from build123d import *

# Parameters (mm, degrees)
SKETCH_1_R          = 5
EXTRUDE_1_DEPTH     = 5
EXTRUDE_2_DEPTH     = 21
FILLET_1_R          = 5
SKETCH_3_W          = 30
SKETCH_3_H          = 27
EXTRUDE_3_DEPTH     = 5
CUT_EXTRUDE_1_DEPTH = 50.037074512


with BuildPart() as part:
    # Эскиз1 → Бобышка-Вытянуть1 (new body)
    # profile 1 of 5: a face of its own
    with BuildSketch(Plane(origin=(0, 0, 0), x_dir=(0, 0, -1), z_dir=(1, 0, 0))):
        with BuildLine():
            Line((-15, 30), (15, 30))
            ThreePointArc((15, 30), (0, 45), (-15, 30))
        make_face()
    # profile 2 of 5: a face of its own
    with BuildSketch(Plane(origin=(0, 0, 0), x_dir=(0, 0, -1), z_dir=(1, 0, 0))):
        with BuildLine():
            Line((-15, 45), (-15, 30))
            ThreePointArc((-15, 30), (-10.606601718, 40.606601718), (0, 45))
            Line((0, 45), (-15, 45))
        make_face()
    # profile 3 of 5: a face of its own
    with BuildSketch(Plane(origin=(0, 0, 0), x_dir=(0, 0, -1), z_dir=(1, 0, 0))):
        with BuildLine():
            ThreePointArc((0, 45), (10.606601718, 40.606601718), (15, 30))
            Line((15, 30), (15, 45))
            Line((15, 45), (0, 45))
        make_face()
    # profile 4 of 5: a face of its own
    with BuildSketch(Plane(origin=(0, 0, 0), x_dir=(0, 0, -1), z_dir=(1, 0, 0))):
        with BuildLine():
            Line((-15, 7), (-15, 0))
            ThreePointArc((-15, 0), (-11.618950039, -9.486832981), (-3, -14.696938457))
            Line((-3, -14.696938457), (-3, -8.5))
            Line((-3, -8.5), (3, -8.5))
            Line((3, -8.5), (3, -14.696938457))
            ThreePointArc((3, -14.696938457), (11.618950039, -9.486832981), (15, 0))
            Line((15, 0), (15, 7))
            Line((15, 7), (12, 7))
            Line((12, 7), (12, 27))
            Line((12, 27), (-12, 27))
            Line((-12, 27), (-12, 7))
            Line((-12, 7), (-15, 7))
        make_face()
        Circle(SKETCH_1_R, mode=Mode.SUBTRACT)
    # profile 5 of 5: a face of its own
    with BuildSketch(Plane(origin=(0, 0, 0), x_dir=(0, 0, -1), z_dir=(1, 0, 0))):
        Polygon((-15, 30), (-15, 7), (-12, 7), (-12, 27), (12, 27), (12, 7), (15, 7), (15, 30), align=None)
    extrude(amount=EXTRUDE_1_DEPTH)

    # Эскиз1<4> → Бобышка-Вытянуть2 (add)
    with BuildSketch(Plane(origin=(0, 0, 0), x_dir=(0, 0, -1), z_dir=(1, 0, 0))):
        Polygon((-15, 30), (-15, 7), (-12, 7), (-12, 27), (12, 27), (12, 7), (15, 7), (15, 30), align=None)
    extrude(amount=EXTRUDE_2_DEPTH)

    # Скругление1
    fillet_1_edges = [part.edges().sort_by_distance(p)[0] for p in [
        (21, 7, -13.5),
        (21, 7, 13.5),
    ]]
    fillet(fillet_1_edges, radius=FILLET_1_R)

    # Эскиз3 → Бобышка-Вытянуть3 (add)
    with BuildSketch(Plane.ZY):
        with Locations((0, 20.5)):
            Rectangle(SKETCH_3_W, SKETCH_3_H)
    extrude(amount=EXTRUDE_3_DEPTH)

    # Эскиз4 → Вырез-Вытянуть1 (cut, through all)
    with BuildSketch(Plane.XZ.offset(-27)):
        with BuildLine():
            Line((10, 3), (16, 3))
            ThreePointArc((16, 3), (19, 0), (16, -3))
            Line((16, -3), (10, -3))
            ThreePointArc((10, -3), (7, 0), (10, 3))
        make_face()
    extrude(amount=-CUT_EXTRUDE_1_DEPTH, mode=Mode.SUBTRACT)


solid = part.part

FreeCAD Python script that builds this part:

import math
import FreeCAD as App
import Part
import Sketcher
Q = App.Units.Quantity


def edges_at(feature, points):
    """Names of the edges that pass closest to the given points."""
    edges = feature.Shape.Edges
    near = lambda p: min(range(len(edges)), key=lambda i: edges[i].distToShape(Part.Vertex(*p))[0])
    return sorted({f"Edge{near(p) + 1}" for p in points})


def add_polygon(sketch, points):
    """Adds a closed chain of lines whose ends are joined by coincident constraints."""
    first, n = sketch.GeometryCount, len(points)
    for a, b in zip(points, points[1:] + points[:1]):
        sketch.addGeometry(Part.LineSegment(App.Vector(*a, 0), App.Vector(*b, 0)), False)
    for i in range(n):
        sketch.addConstraint(Sketcher.Constraint("Coincident", first + i, 2, first + (i + 1) % n, 1))

doc = App.newDocument("Part")
body = doc.addObject("PartDesign::Body", "Body")

sketch1 = body.newObject("Sketcher::SketchObject", "Sketch")
sketch1.AttachmentSupport = (doc.getObject("YZ_Plane"), [""])
sketch1.MapMode = "FlatFace"
sketch1.addGeometry(Part.ArcOfCircle(Part.Circle(App.Vector(0, 0, 0), App.Vector(0, 0, 1), 15), math.radians(90), math.radians(168)), False)
sketch1.addGeometry(Part.LineSegment(App.Vector(-15, 3, 0), App.Vector(-8, 3, 0)), False)
sketch1.addGeometry(Part.LineSegment(App.Vector(-8, 3, 0), App.Vector(-8, -3, 0)), False)
sketch1.addGeometry(Part.LineSegment(App.Vector(-8, -3, 0), App.Vector(-15, -3, 0)), False)
sketch1.addGeometry(Part.ArcOfCircle(Part.Circle(App.Vector(0, 0, 0), App.Vector(0, 0, 1), 15), math.radians(-168), math.radians(-90)), False)
sketch1.addGeometry(Part.LineSegment(App.Vector(0, -15, 0), App.Vector(45, -15, 0)), False)
sketch1.addGeometry(Part.LineSegment(App.Vector(45, -15, 0), App.Vector(45, 15, 0)), False)
sketch1.addGeometry(Part.LineSegment(App.Vector(45, 15, 0), App.Vector(0, 15, 0)), False)
sketch1.addGeometry(Part.Circle(App.Vector(0, 0, 0), App.Vector(0, 0, 1), 5), False)
sketch1.addConstraint(Sketcher.Constraint("Coincident", 0, 2, 1, 1))
sketch1.addConstraint(Sketcher.Constraint("Coincident", 1, 2, 2, 1))
sketch1.addConstraint(Sketcher.Constraint("Coincident", 2, 2, 3, 1))
sketch1.addConstraint(Sketcher.Constraint("Coincident", 3, 2, 4, 1))
sketch1.addConstraint(Sketcher.Constraint("Tangent", 4, 2, 5, 1))
sketch1.addConstraint(Sketcher.Constraint("Coincident", 5, 2, 6, 1))
sketch1.addConstraint(Sketcher.Constraint("Coincident", 6, 2, 7, 1))
sketch1.addConstraint(Sketcher.Constraint("Tangent", 7, 2, 0, 1))
sketch1.addConstraint(Sketcher.Constraint("Horizontal", 1))
sketch1.addConstraint(Sketcher.Constraint("Vertical", 2))
sketch1.addConstraint(Sketcher.Constraint("Horizontal", 3))
sketch1.addConstraint(Sketcher.Constraint("Horizontal", 5))
sketch1.addConstraint(Sketcher.Constraint("Vertical", 6))
sketch1.addConstraint(Sketcher.Constraint("Horizontal", 7))
sketch1.addConstraint(Sketcher.Constraint("Coincident", 0, 3, -1, 1))
sketch1.addConstraint(Sketcher.Constraint("Coincident", 4, 3, -1, 1))
sketch1.addConstraint(Sketcher.Constraint("Coincident", 8, 3, -1, 1))
sketch1.addConstraint(Sketcher.Constraint("Equal", 0, 4))
sketch1.addConstraint(Sketcher.Constraint("Vertical", 0, 2, 3, 2))
sketch1.addConstraint(Sketcher.Constraint("Diameter", 8, Q("10 mm")))
sketch1.addConstraint(Sketcher.Constraint("Radius", 0, Q("15 mm")))
sketch1.addConstraint(Sketcher.Constraint("DistanceX", 5, 1, 5, 2, Q("45 mm")))
sketch1.addConstraint(Sketcher.Constraint("DistanceY", 2, 2, 2, 1, Q("6 mm")))
sketch1.addConstraint(Sketcher.Constraint("DistanceX", 1, 2, -1, 1, Q("8.5 mm")))
pad1 = body.newObject("PartDesign::Pad", "Pad")
pad1.Profile = sketch1
pad1.Length = 5

sketch2 = body.newObject("Sketcher::SketchObject", "Sketch001")
sketch2.AttachmentSupport = (doc.getObject("YZ_Plane"), [""])
sketch2.MapMode = "FlatFace"
add_polygon(sketch2, [(30, 15), (7, 15), (7, 12), (27, 12), (27, -12), (7, -12), (7, -15), (30, -15)])
sketch2.addConstraint(Sketcher.Constraint("Horizontal", 0))
sketch2.addConstraint(Sketcher.Constraint("Vertical", 1))
sketch2.addConstraint(Sketcher.Constraint("Horizontal", 2))
sketch2.addConstraint(Sketcher.Constraint("Vertical", 3))
sketch2.addConstraint(Sketcher.Constraint("Horizontal", 4))
sketch2.addConstraint(Sketcher.Constraint("Vertical", 5))
sketch2.addConstraint(Sketcher.Constraint("Horizontal", 6))
sketch2.addConstraint(Sketcher.Constraint("Vertical", 7))
sketch2.addConstraint(Sketcher.Constraint("Symmetric", 1, 2, 4, 2, -1))
sketch2.addConstraint(Sketcher.Constraint("Equal", 1, 5))
sketch2.addConstraint(Sketcher.Constraint("DistanceX", 0, 2, 0, 1, Q("23 mm")))
sketch2.addConstraint(Sketcher.Constraint("DistanceX", 2, 1, 2, 2, Q("20 mm")))
sketch2.addConstraint(Sketcher.Constraint("DistanceY", 1, 2, 1, 1, Q("3 mm")))
sketch2.addConstraint(Sketcher.Constraint("DistanceY", 3, 2, 3, 1, Q("24 mm")))
sketch2.addConstraint(Sketcher.Constraint("DistanceX", -1, 1, 0, 2, Q("7 mm")))
pad2 = body.newObject("PartDesign::Pad", "Pad001")
pad2.Profile = sketch2
pad2.Length = 21
doc.recompute()

fillet = body.newObject("PartDesign::Fillet", "Fillet")
fillet.Base = (pad2, edges_at(pad2, [(21, 7, -13.5), (21, 7, 13.5)]))
fillet.Radius = 5

sketch3 = body.newObject("Sketcher::SketchObject", "Sketch002")
sketch3.AttachmentSupport = (doc.getObject("YZ_Plane"), [""])
sketch3.MapMode = "FlatFace"
add_polygon(sketch3, [(34, -15), (7, -15), (7, 15), (34, 15)])
sketch3.addConstraint(Sketcher.Constraint("Horizontal", 0))
sketch3.addConstraint(Sketcher.Constraint("Vertical", 1))
sketch3.addConstraint(Sketcher.Constraint("Horizontal", 2))
sketch3.addConstraint(Sketcher.Constraint("Vertical", 3))
sketch3.addConstraint(Sketcher.Constraint("DistanceX", 0, 2, 0, 1, Q("27 mm")))
sketch3.addConstraint(Sketcher.Constraint("DistanceY", 1, 1, 1, 2, Q("30 mm")))
sketch3.addConstraint(Sketcher.Constraint("DistanceX", -1, 1, 0, 2, Q("7 mm")))
sketch3.addConstraint(Sketcher.Constraint("DistanceY", 0, 2, -1, 1, Q("15 mm")))
pad3 = body.newObject("PartDesign::Pad", "Pad002")
pad3.Profile = sketch3
pad3.Length = 5
pad3.Reversed = True

sketch4 = body.newObject("Sketcher::SketchObject", "Sketch003")
sketch4.AttachmentSupport = (doc.getObject("XZ_Plane"), [""])
sketch4.MapMode = "FlatFace"
sketch4.AttachmentOffset = App.Placement(App.Vector(0, 0, -27), App.Rotation())
sketch4.addGeometry(Part.LineSegment(App.Vector(16, 3, 0), App.Vector(10, 3, 0)), False)
sketch4.addGeometry(Part.ArcOfCircle(Part.Circle(App.Vector(10, 0, 0), App.Vector(0, 0, 1), 3), math.radians(90), math.radians(270)), False)
sketch4.addGeometry(Part.LineSegment(App.Vector(10, -3, 0), App.Vector(16, -3, 0)), False)
sketch4.addGeometry(Part.ArcOfCircle(Part.Circle(App.Vector(16, 0, 0), App.Vector(0, 0, 1), 3), math.radians(-90), math.radians(90)), False)
sketch4.addConstraint(Sketcher.Constraint("Tangent", 0, 2, 1, 1))
sketch4.addConstraint(Sketcher.Constraint("Tangent", 1, 2, 2, 1))
sketch4.addConstraint(Sketcher.Constraint("Tangent", 2, 2, 3, 1))
sketch4.addConstraint(Sketcher.Constraint("Tangent", 3, 2, 0, 1))
sketch4.addConstraint(Sketcher.Constraint("Horizontal", 0))
sketch4.addConstraint(Sketcher.Constraint("Horizontal", 2))
sketch4.addConstraint(Sketcher.Constraint("PointOnObject", 1, 3, -1))
sketch4.addConstraint(Sketcher.Constraint("Radius", 1, Q("3 mm")))
sketch4.addConstraint(Sketcher.Constraint("DistanceX", 0, 2, 0, 1, Q("6 mm")))
sketch4.addConstraint(Sketcher.Constraint("DistanceX", -1, 1, 1, 3, Q("10 mm")))
pocket1 = body.newObject("PartDesign::Pocket", "Pocket")
pocket1.Profile = sketch4
pocket1.Type = "ThroughAll"

doc.recompute()
